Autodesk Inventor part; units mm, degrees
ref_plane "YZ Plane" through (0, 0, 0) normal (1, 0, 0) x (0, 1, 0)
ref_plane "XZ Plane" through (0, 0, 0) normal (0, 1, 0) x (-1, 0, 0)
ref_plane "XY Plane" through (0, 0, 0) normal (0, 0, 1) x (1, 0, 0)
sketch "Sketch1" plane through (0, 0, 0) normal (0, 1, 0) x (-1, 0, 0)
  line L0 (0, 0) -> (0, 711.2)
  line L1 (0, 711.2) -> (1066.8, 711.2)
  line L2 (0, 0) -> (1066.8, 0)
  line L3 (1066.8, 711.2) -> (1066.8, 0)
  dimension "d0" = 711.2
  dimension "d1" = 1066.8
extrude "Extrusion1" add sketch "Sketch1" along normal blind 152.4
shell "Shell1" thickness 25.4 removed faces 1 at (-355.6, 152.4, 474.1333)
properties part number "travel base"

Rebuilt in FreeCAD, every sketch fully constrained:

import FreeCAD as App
import Part
import Sketcher

V = App.Vector
Q = App.Units.Quantity


def faces_at(feature, points):
    """Names of the faces that lie closest to the given points."""
    faces = feature.Shape.Faces
    near = lambda p: min(range(len(faces)), key=lambda i: faces[i].distToShape(Part.Vertex(*p))[0])
    return sorted({f"Face{near(p) + 1}" for p in points})

doc = App.newDocument("Part")
body = doc.addObject("PartDesign::Body", "Body")

sketch1 = doc.addObject("Sketcher::SketchObject", "Sketch")
body.addObject(sketch1)
sketch1.AttachmentSupport = (doc.XZ_Plane, [""])
sketch1.MapMode = "FlatFace"
sketch1.addGeometry(Part.LineSegment(V(0, 711.2, 0), V(0, 0, 0)), False)
sketch1.addGeometry(Part.LineSegment(V(0, 0, 0), V(-1066.8, 0, 0)), False)
sketch1.addGeometry(Part.LineSegment(V(-1066.8, 0, 0), V(-1066.8, 711.2, 0)), False)
sketch1.addGeometry(Part.LineSegment(V(-1066.8, 711.2, 0), V(0, 711.2, 0)), False)
sketch1.addConstraint(Sketcher.Constraint("Coincident", 0, 2, 1, 1))
sketch1.addConstraint(Sketcher.Constraint("Coincident", 1, 2, 2, 1))
sketch1.addConstraint(Sketcher.Constraint("Coincident", 2, 2, 3, 1))
sketch1.addConstraint(Sketcher.Constraint("Coincident", 3, 2, 0, 1))
sketch1.addConstraint(Sketcher.Constraint("Vertical", 0))
sketch1.addConstraint(Sketcher.Constraint("Horizontal", 1))
sketch1.addConstraint(Sketcher.Constraint("Vertical", 2))
sketch1.addConstraint(Sketcher.Constraint("Horizontal", 3))
sketch1.addConstraint(Sketcher.Constraint("Coincident", 0, 2, -1, 1))
sketch1.addConstraint(Sketcher.Constraint("DistanceX", 1, 2, 1, 1, Q("42 in")))
sketch1.addConstraint(Sketcher.Constraint("DistanceY", 0, 2, 0, 1, Q("28 in")))
pad1 = doc.addObject("PartDesign::Pad", "Pad")
body.addObject(pad1)
pad1.Profile = sketch1
pad1.Length = Q("6 in")
pad1.Reversed = True
doc.recompute()

thickness = doc.addObject("PartDesign::Thickness", "Thickness")
body.addObject(thickness)
thickness.Base = (pad1, faces_at(pad1, [(-355.6, 152.4, 474.133)]))
thickness.Value = Q("1 in")
thickness.Reversed = True
thickness.Join = "Intersection"

doc.recompute()
